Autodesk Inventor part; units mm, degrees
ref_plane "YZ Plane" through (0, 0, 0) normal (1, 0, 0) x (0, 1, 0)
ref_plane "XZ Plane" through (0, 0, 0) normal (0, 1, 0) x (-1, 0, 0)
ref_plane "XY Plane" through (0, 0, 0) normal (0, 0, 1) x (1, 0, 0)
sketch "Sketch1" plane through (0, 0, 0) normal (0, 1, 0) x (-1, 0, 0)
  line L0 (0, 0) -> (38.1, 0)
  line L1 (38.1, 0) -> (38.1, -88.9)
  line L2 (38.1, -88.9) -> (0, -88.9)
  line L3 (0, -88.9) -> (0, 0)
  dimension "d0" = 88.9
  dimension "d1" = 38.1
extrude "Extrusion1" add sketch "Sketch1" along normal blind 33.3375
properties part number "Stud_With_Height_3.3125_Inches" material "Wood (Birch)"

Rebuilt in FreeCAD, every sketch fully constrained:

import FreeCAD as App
import Part
import Sketcher

V = App.Vector
Q = App.Units.Quantity


def add_polygon(sketch, points):
    """Adds a closed chain of lines whose ends are joined by coincident constraints."""
    first, n = sketch.GeometryCount, len(points)
    for a, b in zip(points, points[1:] + points[:1]):
        sketch.addGeometry(Part.LineSegment(App.Vector(*a, 0), App.Vector(*b, 0)), False)
    for i in range(n):
        sketch.addConstraint(Sketcher.Constraint("Coincident", first + i, 2, first + (i + 1) % n, 1))

doc = App.newDocument("Part")
body = doc.addObject("PartDesign::Body", "Body")

# Sketch on XZ plane
sketch1 = body.newObject("Sketcher::SketchObject", "Sketch")
sketch1.AttachmentSupport = (doc.getObject("XZ_Plane"), [""])
sketch1.MapMode = "FlatFace"
add_polygon(sketch1, [(-38, 0), (0, 0), (0, -89), (-38, -89)])  # lines 0-3
sketch1.addConstraint([
    Sketcher.Constraint("Horizontal", 0),
    Sketcher.Constraint("Vertical", 1),
    Sketcher.Constraint("Horizontal", 2),
    Sketcher.Constraint("Vertical", 3),
    Sketcher.Constraint("Coincident", 0, 2, -1, 1),
    Sketcher.Constraint("DistanceX", 0, 1, 0, 2, Q("1.5 in")),
    Sketcher.Constraint("DistanceY", 1, 2, 1, 1, Q("3.5 in")),
])
pad1 = body.newObject("PartDesign::Pad", "Pad")
pad1.Profile = sketch1
pad1.Length = Q("1.3125 in")
pad1.Reversed = True

doc.recompute()
